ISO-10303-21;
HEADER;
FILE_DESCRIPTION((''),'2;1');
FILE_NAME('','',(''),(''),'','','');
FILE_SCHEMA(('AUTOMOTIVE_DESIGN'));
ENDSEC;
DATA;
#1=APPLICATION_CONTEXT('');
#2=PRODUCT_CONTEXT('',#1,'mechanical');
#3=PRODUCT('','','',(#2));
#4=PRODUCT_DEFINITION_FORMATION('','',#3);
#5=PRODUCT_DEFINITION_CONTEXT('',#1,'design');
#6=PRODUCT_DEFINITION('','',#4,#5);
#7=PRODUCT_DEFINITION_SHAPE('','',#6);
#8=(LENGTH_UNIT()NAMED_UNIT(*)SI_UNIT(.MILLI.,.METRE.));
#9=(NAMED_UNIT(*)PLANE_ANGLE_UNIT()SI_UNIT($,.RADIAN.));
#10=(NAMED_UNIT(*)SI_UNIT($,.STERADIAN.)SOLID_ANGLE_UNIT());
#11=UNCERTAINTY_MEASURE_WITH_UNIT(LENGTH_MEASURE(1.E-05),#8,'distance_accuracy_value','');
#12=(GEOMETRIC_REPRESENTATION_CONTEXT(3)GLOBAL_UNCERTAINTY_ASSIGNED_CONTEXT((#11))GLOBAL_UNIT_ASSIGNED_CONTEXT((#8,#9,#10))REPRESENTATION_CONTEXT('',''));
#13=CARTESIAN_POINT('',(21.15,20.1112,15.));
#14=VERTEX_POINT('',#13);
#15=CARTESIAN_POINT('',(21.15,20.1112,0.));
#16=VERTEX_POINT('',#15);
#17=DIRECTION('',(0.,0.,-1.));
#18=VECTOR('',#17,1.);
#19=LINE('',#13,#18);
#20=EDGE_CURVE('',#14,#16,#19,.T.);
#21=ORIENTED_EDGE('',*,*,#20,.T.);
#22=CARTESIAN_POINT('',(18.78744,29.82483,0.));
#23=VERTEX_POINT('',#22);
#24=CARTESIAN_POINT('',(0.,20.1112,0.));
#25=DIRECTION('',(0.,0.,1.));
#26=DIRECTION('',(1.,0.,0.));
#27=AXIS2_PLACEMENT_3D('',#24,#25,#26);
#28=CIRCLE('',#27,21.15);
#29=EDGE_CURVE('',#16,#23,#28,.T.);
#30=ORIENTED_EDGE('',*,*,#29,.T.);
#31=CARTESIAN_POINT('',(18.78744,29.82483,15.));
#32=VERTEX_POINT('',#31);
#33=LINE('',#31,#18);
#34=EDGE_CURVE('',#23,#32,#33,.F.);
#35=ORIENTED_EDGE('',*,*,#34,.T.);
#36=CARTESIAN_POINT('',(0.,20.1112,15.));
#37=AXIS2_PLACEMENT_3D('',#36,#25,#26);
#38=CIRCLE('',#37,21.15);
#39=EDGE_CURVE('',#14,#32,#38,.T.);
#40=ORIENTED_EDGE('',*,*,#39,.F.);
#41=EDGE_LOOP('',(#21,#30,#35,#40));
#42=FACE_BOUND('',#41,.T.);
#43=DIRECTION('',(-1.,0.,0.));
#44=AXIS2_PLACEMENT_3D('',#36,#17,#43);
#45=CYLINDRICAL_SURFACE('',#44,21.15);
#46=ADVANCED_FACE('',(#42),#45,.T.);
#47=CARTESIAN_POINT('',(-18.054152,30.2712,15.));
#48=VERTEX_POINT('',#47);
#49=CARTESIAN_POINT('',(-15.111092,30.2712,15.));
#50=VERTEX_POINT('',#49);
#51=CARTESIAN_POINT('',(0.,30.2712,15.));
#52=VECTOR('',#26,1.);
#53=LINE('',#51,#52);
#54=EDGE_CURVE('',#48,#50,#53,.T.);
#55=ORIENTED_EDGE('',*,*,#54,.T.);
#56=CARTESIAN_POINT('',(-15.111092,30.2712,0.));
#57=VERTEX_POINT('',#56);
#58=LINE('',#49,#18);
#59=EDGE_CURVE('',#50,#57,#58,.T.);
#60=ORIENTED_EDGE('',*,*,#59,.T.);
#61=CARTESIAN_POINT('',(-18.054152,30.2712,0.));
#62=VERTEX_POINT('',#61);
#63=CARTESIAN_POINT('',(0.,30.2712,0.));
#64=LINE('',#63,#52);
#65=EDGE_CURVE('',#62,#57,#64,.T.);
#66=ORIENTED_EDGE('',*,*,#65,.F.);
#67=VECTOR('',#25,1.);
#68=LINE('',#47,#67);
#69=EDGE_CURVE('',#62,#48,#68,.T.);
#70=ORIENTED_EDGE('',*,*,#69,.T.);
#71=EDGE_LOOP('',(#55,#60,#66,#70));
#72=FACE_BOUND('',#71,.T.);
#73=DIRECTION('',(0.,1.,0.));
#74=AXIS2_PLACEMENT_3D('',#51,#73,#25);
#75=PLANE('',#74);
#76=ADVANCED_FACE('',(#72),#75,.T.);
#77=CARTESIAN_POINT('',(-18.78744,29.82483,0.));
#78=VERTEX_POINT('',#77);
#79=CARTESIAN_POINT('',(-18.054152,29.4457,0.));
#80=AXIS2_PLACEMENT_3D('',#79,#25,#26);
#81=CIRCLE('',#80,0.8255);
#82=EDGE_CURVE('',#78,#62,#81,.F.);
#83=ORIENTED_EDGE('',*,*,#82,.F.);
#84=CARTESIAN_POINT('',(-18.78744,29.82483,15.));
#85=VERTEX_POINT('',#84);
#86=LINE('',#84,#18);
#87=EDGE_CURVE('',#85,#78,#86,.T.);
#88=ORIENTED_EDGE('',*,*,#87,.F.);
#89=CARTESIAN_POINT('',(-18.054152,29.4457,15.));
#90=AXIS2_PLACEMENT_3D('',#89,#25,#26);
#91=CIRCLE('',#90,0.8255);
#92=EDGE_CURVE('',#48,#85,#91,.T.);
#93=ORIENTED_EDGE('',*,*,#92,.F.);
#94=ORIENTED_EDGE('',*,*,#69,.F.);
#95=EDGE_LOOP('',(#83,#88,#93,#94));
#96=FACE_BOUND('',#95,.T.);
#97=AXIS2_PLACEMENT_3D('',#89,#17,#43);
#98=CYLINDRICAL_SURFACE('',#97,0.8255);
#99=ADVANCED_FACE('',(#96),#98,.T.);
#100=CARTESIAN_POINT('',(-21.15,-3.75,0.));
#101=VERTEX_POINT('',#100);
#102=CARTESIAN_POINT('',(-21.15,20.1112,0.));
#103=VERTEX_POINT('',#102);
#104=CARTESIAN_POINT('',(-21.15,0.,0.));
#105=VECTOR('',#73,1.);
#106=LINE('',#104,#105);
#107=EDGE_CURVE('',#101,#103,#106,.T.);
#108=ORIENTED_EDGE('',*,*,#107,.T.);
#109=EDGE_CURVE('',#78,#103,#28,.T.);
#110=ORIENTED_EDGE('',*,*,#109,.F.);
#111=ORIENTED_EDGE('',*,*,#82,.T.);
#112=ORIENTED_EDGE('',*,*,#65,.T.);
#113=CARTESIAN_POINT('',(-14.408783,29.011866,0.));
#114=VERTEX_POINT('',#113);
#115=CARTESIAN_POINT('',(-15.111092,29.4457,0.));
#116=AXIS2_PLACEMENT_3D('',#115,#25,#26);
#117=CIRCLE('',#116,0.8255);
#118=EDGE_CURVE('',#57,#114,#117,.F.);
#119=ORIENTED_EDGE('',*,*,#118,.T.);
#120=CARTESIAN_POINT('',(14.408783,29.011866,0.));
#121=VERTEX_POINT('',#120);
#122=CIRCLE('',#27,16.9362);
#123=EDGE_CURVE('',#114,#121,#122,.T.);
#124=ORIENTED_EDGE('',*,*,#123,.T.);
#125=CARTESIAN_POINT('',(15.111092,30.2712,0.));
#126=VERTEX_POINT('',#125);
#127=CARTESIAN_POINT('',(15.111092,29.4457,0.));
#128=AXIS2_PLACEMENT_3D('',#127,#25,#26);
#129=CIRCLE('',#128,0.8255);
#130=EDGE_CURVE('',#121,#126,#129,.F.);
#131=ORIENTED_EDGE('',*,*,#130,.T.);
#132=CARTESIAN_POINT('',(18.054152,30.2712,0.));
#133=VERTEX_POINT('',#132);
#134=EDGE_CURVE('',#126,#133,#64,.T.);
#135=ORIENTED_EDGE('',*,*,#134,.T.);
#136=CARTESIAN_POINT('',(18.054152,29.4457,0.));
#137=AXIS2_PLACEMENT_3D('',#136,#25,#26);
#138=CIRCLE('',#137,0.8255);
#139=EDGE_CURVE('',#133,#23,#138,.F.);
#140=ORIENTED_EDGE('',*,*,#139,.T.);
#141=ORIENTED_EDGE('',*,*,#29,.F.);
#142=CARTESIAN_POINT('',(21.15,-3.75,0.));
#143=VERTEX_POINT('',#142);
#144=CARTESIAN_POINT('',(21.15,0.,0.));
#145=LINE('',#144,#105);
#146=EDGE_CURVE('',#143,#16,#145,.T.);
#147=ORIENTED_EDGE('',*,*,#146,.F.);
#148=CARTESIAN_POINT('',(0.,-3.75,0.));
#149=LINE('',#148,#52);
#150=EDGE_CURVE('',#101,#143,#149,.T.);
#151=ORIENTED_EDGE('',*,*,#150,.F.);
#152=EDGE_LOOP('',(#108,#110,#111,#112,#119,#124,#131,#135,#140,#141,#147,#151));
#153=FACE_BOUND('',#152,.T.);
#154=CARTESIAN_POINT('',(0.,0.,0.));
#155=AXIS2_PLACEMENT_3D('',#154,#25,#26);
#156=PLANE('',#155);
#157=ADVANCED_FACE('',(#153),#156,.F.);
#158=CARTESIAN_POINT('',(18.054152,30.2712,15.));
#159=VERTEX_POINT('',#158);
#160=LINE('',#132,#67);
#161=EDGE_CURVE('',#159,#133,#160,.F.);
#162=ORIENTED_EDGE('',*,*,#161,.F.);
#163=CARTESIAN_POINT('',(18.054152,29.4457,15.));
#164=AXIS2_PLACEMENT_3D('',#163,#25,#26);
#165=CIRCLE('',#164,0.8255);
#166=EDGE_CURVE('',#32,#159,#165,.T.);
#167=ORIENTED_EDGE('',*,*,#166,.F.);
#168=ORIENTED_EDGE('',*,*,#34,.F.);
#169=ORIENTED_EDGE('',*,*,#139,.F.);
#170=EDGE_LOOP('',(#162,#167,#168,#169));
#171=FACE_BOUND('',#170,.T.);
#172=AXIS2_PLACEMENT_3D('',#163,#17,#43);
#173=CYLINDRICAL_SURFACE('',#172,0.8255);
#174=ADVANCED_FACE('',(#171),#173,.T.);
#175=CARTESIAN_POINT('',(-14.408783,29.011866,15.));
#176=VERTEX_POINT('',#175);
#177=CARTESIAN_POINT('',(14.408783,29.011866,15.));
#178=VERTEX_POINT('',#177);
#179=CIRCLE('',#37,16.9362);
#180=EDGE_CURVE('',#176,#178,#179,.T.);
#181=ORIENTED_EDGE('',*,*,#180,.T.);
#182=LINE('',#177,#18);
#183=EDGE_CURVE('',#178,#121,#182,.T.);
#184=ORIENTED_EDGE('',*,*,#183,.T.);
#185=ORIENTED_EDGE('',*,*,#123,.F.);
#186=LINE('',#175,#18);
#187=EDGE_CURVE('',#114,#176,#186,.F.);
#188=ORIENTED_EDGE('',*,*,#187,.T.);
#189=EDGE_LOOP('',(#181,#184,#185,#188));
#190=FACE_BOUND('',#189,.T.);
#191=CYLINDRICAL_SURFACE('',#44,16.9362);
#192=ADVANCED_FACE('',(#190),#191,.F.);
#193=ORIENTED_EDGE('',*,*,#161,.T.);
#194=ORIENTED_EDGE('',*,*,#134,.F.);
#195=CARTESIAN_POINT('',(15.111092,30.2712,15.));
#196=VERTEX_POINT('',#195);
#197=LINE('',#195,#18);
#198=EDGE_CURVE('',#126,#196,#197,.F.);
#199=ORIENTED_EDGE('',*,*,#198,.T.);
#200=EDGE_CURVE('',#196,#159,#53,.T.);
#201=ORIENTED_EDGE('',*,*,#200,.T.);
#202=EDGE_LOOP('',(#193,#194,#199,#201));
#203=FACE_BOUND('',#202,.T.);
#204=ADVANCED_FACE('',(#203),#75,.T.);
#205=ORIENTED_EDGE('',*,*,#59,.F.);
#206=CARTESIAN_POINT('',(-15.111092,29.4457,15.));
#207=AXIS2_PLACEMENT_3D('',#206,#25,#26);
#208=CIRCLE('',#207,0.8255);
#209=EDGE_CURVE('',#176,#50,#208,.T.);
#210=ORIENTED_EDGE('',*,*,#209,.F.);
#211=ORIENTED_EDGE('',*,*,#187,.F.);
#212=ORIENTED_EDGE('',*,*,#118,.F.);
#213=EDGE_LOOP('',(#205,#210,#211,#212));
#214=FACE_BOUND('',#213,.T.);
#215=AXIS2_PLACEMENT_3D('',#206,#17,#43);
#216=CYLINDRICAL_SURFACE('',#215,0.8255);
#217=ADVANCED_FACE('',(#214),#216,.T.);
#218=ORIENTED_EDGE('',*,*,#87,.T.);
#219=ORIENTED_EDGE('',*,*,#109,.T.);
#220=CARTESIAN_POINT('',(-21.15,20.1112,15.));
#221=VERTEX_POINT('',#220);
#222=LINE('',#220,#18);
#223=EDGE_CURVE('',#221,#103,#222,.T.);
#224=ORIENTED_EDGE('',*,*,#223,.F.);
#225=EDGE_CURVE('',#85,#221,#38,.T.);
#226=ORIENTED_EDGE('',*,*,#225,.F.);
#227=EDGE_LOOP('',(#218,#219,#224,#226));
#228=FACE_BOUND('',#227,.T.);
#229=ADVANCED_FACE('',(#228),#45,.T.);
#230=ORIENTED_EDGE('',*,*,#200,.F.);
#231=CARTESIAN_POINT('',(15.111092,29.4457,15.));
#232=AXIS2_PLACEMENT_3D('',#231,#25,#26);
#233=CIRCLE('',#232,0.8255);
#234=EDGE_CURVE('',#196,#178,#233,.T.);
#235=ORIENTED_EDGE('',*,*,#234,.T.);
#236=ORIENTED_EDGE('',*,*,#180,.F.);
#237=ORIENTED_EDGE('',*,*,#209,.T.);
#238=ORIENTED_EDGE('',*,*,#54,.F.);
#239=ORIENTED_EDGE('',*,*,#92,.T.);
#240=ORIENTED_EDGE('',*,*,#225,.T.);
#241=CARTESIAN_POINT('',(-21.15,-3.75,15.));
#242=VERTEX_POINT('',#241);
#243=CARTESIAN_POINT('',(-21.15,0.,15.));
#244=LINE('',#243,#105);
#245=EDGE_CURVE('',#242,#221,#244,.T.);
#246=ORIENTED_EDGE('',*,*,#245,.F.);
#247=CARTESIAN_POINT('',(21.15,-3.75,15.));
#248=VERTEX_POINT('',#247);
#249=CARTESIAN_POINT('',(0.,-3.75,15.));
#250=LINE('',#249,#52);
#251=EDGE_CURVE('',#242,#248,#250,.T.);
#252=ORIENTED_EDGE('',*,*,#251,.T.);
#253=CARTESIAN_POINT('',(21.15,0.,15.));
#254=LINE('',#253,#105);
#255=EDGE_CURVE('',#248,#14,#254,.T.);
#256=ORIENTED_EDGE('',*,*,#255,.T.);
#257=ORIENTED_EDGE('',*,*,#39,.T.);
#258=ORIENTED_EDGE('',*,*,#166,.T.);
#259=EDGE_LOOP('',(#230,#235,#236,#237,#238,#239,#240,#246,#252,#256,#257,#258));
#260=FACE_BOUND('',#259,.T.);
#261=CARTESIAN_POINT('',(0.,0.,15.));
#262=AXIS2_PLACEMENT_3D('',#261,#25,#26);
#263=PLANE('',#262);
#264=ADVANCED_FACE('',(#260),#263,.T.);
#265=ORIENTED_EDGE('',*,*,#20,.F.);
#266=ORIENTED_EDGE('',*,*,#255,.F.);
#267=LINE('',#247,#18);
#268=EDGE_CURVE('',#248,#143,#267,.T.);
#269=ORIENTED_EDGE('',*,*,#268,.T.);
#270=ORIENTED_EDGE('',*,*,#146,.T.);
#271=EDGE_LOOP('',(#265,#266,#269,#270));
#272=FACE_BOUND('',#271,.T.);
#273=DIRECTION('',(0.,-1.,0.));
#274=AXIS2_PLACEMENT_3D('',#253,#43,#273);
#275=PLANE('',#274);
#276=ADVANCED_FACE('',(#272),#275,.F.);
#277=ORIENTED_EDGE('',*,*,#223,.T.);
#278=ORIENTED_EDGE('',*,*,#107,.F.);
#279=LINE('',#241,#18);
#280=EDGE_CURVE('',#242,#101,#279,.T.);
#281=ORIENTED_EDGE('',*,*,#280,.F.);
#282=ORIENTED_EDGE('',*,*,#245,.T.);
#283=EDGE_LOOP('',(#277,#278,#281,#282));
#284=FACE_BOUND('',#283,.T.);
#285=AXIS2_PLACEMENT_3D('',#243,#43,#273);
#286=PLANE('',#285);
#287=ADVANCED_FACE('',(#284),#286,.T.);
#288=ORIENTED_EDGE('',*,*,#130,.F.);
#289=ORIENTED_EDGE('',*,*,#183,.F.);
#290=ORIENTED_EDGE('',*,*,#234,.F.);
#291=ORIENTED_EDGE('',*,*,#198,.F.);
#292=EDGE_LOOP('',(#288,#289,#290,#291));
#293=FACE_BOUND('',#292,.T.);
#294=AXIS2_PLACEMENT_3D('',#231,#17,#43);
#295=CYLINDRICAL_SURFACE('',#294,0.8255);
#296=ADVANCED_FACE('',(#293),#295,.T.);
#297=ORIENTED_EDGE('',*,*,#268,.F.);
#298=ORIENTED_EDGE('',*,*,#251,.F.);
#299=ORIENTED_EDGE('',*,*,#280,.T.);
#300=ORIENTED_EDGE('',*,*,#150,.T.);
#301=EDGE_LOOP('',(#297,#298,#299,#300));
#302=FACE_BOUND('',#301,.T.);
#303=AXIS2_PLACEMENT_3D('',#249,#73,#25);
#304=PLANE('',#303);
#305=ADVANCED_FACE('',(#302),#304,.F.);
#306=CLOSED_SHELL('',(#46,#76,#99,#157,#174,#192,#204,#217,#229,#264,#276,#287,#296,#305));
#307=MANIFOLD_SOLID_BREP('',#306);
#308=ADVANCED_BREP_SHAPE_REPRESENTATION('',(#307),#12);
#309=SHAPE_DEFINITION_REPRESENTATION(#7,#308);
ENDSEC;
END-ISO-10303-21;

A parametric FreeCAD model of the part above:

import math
import FreeCAD as App
import Part
import Sketcher

V = App.Vector


def edges_at(feature, points):
    """Names of the edges that pass closest to the given points."""
    edges = feature.Shape.Edges
    near = lambda p: min(range(len(edges)), key=lambda i: edges[i].distToShape(Part.Vertex(*p))[0])
    return sorted({f"Edge{near(p) + 1}" for p in points})

doc = App.newDocument("Part")
body = doc.addObject("PartDesign::Body", "Body")

sketch1 = body.newObject("Sketcher::SketchObject", "Sketch")
sketch1.AttachmentSupport = (doc.getObject("XY_Plane"), [""])
sketch1.MapMode = "FlatFace"
sketch1.addGeometry([
    Part.ArcOfCircle(Part.Circle(V(0, 20.1, 0), V(0, 0, 1), 21.1), math.radians(0), math.radians(29)),
    Part.LineSegment(V(18.5, 30.3, 0), V(13.6, 30.3, 0)),
    Part.ArcOfCircle(Part.Circle(V(0, 20.1, 0), V(0, 0, 1), 16.9), math.radians(143), math.radians(397)),
    Part.LineSegment(V(-13.6, 30.3, 0), V(-18.5, 30.3, 0)),
    Part.ArcOfCircle(Part.Circle(V(0, 20.1, 0), V(0, 0, 1), 21.1), math.radians(151), math.radians(180)),
    Part.LineSegment(V(-21.1, 20.1, 0), V(-21.1, -3.8, 0)),
    Part.LineSegment(V(-21.1, -3.8, 0), V(21.1, -3.8, 0)),
    Part.LineSegment(V(21.1, -3.8, 0), V(21.1, 20.1, 0)),
], False)
sketch1.addConstraint([
    Sketcher.Constraint("Coincident", 0, 2, 1, 1),
    Sketcher.Constraint("Coincident", 1, 2, 2, 2),
    Sketcher.Constraint("Coincident", 2, 1, 3, 1),
    Sketcher.Constraint("Coincident", 3, 2, 4, 1),
    Sketcher.Constraint("Tangent", 4, 2, 5, 1),
    Sketcher.Constraint("Coincident", 5, 2, 6, 1),
    Sketcher.Constraint("Coincident", 6, 2, 7, 1),
    Sketcher.Constraint("Tangent", 7, 2, 0, 1),
    Sketcher.Constraint("Horizontal", 1),
    Sketcher.Constraint("Horizontal", 3),
    Sketcher.Constraint("Vertical", 5),
    Sketcher.Constraint("Horizontal", 6),
    Sketcher.Constraint("Vertical", 7),
    Sketcher.Constraint("Coincident", 2, 3, 0, 3),
    Sketcher.Constraint("Coincident", 4, 3, 0, 3),
    Sketcher.Constraint("Equal", 0, 4),
    Sketcher.Constraint("Symmetric", 1, 2, 2, 1, -2),
    Sketcher.Constraint("Radius", 0, 21.15),
    Sketcher.Constraint("Radius", 2, 16.9362),
    Sketcher.Constraint("DistanceY", 5, 2, -1, 1, 3.75),
    Sketcher.Constraint("DistanceY", 0, 3, 0, 2, 10.16),
    Sketcher.Constraint("DistanceY", 5, 2, 5, 1, 23.8612),
])
pad1 = body.newObject("PartDesign::Pad", "Pad")
pad1.Profile = sketch1
pad1.Length = 15
doc.recompute()

fillet = body.newObject("PartDesign::Fillet", "Fillet")
fillet.Base = (pad1, edges_at(pad1, [
    (-18.55, 30.271, 7.5),
    (-13.55, 30.271, 7.5),
    (13.55, 30.271, 7.5),
    (18.55, 30.271, 7.5),
]))
fillet.Radius = 0.8255

doc.recompute()
